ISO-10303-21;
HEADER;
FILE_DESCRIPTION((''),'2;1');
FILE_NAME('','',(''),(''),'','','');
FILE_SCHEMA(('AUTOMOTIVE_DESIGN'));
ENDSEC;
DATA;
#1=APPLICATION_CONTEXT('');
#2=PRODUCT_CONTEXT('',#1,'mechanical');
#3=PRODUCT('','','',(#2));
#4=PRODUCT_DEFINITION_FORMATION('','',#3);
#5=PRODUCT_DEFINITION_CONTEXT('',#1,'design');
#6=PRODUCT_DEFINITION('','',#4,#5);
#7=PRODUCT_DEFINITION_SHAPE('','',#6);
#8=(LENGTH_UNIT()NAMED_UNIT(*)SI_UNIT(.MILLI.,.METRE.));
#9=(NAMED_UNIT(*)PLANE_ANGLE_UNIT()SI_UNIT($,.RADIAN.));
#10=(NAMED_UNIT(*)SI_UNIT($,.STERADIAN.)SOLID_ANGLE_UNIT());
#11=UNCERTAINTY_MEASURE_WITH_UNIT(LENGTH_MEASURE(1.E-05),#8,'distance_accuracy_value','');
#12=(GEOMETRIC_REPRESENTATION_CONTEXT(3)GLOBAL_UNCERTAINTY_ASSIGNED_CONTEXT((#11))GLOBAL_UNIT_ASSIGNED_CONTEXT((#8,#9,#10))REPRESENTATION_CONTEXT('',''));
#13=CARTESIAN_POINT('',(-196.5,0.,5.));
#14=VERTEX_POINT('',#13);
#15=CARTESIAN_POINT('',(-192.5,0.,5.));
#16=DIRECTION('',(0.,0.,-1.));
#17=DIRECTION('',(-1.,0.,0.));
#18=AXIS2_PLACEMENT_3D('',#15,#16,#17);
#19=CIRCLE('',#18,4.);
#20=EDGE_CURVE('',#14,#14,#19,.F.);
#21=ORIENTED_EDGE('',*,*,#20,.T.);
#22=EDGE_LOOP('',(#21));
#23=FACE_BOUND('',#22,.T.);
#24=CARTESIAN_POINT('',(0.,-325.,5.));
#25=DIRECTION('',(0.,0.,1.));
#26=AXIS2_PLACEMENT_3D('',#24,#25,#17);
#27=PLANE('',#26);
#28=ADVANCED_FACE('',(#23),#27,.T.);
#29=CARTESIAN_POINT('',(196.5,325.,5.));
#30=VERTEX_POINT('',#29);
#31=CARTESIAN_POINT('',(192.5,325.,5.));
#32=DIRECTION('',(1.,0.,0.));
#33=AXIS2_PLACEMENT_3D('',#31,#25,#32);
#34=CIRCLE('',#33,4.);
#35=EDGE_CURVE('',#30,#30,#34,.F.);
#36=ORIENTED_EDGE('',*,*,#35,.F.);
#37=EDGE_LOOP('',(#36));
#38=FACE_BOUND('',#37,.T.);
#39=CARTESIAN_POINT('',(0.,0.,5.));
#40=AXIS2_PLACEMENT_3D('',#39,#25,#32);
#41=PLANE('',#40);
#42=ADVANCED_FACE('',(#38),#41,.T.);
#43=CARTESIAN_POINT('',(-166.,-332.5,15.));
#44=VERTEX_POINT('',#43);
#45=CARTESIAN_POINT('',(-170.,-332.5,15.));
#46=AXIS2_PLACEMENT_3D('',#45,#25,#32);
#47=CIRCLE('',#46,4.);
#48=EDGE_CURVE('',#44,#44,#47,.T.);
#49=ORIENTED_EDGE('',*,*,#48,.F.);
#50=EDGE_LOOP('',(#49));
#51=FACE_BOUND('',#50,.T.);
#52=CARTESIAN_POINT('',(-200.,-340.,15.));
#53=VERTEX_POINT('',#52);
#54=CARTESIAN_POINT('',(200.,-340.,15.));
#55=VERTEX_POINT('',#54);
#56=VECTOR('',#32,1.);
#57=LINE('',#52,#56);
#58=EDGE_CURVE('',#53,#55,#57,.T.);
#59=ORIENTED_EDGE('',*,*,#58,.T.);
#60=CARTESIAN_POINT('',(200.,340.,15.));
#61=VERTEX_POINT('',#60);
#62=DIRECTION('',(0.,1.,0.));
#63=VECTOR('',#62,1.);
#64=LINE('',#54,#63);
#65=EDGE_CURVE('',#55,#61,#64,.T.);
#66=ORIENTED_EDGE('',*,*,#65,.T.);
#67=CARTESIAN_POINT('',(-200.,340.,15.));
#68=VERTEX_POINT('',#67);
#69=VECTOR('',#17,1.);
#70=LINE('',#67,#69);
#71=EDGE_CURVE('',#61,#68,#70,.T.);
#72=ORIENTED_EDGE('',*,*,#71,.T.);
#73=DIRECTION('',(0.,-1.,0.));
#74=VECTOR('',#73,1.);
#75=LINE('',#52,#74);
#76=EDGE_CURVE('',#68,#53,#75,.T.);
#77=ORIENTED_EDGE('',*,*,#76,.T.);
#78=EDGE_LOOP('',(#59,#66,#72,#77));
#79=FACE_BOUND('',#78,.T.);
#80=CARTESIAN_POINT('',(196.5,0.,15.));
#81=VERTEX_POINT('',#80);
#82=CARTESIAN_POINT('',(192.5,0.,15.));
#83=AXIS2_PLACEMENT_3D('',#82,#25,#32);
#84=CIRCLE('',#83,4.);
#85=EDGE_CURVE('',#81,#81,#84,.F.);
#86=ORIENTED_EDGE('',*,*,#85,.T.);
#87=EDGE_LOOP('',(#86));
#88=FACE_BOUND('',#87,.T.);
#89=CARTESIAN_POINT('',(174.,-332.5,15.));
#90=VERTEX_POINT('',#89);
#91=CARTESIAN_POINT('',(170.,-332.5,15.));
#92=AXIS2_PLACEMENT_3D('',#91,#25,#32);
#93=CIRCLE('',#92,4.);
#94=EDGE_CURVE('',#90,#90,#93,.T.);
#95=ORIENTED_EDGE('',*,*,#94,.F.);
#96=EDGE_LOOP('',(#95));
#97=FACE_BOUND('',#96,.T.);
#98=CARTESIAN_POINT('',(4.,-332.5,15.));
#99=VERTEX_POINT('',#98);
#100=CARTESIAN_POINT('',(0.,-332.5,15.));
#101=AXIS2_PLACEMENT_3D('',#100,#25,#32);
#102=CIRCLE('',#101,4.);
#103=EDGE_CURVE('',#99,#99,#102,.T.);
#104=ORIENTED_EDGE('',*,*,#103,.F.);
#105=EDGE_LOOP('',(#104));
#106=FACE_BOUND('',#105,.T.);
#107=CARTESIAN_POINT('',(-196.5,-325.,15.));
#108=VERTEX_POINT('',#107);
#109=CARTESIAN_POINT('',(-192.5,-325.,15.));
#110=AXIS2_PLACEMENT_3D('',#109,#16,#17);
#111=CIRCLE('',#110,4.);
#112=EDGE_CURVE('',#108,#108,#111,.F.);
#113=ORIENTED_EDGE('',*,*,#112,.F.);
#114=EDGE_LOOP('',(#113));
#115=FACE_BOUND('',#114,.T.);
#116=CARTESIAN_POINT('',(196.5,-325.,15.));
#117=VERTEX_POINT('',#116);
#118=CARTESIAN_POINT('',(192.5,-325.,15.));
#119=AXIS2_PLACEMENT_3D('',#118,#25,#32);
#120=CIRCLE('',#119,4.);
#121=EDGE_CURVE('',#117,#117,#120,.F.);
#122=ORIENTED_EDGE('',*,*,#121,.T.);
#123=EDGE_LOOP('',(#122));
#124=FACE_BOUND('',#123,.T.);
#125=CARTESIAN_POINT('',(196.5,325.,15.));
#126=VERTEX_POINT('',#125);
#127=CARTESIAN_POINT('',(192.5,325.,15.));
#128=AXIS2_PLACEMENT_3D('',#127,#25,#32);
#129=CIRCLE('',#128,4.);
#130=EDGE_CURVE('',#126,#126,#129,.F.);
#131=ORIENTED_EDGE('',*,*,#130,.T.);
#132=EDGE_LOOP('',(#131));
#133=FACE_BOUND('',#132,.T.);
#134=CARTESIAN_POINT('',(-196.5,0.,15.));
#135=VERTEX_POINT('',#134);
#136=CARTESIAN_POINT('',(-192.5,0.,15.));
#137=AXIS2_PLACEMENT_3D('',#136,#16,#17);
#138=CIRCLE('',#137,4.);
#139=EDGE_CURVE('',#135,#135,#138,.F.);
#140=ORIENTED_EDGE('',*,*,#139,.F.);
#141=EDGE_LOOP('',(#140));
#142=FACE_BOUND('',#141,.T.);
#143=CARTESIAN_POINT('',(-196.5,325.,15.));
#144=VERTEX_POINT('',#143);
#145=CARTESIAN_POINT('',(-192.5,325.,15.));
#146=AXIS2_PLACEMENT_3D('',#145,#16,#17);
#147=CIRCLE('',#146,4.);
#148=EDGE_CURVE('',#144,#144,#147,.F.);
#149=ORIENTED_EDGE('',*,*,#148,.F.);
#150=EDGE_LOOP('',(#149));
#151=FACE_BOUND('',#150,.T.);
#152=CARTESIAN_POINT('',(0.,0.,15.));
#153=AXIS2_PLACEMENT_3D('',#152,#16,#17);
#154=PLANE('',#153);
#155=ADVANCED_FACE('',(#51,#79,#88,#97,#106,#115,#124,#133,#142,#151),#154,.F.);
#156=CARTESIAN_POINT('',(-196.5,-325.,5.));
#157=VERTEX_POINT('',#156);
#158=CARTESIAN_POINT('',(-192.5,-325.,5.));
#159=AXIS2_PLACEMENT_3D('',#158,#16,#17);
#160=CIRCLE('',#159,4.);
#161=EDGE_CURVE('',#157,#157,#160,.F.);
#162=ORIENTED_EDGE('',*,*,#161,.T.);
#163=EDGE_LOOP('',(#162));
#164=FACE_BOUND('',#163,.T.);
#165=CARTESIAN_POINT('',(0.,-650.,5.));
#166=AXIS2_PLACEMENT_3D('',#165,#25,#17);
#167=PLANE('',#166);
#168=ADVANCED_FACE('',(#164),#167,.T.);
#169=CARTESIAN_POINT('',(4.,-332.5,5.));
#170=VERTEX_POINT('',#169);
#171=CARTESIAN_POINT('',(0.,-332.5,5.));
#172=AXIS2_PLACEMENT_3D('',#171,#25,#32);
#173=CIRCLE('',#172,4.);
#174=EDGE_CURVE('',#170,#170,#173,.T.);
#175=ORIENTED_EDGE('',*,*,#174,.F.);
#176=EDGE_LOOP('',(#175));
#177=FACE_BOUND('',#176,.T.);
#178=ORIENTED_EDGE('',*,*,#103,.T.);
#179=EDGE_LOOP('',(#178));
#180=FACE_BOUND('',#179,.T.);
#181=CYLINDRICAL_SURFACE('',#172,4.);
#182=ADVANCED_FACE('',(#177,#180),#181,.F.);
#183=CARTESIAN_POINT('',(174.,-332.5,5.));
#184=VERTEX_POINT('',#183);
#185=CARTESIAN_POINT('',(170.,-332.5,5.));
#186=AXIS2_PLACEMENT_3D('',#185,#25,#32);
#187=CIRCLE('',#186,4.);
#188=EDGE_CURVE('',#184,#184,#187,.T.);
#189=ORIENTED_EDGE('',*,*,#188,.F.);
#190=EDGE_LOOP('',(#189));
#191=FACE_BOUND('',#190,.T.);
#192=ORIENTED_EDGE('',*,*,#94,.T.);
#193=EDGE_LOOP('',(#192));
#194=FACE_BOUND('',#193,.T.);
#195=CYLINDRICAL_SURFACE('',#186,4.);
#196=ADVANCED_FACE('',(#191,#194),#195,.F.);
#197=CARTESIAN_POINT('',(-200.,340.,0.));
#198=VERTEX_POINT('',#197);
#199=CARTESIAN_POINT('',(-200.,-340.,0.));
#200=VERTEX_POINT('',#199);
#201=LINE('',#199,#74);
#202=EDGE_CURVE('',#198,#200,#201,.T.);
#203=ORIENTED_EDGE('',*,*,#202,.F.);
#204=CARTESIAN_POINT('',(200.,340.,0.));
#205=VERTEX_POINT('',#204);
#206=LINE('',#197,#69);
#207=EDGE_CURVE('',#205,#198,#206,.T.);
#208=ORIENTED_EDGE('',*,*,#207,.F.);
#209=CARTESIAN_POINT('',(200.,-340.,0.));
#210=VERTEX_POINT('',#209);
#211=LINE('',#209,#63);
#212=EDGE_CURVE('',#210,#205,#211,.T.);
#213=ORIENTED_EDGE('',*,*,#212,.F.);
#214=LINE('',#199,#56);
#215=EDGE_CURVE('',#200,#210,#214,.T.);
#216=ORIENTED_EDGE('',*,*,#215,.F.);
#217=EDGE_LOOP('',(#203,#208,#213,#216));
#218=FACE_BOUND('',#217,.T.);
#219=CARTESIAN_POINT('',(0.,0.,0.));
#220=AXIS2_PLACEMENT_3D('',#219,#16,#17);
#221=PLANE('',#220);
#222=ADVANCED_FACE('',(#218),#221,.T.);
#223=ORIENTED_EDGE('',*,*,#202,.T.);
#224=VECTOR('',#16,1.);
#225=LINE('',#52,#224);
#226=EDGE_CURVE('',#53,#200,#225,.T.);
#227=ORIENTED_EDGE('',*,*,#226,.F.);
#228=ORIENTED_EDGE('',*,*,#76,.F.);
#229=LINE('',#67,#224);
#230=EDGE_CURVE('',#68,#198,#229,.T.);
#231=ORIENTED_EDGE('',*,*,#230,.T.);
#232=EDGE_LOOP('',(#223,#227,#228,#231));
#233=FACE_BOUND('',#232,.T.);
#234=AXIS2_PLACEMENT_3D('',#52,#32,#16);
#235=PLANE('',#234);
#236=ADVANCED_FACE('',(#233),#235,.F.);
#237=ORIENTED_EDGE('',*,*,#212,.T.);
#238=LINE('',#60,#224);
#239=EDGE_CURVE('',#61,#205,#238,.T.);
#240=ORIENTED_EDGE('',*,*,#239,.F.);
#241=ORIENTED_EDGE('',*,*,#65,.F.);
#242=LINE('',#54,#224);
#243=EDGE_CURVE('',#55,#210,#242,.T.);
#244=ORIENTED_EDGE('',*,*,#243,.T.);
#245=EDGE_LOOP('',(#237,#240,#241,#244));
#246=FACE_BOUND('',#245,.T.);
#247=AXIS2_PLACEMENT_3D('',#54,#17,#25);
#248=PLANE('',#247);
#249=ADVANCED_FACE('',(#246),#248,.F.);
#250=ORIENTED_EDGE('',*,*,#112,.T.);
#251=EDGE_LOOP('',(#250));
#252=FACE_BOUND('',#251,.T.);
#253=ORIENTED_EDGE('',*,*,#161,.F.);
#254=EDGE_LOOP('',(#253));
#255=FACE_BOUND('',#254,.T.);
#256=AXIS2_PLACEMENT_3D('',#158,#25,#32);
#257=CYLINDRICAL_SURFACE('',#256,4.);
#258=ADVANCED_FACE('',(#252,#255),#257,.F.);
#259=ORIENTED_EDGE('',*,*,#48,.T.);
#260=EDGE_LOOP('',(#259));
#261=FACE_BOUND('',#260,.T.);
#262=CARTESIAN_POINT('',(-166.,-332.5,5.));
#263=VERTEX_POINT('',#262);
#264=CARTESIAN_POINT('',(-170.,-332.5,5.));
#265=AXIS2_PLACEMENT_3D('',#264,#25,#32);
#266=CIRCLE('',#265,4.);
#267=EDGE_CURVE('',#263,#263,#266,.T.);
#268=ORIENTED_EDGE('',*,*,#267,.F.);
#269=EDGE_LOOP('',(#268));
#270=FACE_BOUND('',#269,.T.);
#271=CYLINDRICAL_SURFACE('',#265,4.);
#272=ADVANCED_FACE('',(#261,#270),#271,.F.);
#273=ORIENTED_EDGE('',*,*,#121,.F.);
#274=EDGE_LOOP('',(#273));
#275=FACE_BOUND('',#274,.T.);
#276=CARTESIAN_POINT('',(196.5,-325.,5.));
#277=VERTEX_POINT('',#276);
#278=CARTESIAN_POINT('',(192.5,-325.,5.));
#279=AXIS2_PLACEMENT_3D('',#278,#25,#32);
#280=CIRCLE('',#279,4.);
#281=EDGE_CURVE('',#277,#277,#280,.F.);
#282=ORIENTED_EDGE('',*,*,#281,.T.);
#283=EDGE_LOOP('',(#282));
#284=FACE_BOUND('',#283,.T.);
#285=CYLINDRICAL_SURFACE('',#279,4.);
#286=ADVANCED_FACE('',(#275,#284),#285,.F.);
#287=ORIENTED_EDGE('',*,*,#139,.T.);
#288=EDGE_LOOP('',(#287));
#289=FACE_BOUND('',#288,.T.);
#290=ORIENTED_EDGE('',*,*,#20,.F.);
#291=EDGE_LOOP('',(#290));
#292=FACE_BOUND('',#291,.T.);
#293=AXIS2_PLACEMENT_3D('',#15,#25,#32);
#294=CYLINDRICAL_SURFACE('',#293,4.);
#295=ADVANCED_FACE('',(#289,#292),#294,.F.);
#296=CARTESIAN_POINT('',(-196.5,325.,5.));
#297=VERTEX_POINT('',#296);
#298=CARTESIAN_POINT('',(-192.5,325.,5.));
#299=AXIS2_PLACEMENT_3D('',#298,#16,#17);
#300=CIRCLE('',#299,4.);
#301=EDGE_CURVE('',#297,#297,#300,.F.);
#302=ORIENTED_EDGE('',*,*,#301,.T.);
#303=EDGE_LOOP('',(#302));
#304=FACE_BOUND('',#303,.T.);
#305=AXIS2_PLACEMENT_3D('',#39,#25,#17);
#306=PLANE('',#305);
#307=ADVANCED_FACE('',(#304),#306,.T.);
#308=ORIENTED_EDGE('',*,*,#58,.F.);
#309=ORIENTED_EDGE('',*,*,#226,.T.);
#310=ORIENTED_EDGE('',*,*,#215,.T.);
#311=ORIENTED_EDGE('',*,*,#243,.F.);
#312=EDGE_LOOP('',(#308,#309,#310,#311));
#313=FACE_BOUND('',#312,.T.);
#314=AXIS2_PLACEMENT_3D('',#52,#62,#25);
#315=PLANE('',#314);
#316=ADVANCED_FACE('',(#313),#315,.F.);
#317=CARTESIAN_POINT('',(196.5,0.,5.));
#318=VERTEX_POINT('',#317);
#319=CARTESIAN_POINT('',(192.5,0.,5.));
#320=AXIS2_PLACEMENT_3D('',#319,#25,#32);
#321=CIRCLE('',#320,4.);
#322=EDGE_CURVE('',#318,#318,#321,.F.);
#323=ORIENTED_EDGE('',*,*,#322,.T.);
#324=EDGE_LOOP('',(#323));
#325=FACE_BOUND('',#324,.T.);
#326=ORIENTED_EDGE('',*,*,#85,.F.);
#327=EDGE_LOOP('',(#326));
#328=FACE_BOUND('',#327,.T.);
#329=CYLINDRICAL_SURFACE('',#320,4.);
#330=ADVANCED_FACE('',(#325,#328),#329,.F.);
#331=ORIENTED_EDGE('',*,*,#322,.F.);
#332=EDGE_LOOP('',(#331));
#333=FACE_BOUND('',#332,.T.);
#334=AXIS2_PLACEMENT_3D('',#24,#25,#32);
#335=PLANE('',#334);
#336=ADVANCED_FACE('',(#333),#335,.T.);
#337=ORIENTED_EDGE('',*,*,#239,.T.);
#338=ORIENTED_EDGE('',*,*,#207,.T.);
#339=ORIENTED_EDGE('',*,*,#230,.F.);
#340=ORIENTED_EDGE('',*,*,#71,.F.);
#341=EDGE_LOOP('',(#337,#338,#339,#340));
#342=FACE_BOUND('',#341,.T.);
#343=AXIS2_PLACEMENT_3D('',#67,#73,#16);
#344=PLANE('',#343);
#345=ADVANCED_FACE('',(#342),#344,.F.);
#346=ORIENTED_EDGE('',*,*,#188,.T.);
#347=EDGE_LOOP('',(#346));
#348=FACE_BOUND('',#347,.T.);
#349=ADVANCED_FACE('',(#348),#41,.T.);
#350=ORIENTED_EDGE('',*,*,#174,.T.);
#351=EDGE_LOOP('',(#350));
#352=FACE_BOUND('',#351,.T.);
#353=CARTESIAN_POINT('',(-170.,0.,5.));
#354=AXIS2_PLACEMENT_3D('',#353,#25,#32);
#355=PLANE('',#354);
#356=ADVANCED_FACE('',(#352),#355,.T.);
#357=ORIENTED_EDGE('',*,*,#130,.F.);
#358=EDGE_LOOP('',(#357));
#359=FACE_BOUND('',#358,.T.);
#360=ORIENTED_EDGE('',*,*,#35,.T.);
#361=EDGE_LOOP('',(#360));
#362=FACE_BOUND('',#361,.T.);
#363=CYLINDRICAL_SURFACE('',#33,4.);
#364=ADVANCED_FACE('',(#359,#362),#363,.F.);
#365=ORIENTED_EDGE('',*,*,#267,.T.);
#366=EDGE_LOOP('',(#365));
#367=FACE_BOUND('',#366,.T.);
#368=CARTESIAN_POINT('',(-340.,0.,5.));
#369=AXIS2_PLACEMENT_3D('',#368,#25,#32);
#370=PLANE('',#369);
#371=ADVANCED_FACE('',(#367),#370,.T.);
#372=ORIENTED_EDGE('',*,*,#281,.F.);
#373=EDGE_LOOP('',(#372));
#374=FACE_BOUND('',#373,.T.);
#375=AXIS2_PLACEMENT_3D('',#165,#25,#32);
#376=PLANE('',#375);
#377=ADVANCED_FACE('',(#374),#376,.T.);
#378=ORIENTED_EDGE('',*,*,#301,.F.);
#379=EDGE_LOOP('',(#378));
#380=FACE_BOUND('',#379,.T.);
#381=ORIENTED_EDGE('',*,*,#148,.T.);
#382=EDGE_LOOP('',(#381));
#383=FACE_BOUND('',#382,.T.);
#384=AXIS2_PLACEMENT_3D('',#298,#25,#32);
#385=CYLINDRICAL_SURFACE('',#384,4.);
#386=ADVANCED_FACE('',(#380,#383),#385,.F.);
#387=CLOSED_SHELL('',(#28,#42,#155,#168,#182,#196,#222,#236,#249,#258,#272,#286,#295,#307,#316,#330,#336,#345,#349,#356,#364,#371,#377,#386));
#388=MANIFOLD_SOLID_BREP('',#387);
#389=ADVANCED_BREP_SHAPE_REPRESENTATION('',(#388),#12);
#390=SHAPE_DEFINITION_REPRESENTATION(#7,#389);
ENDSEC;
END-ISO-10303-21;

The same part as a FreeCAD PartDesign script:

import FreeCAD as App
import Part
import Sketcher
from FreeCAD import Vector


def add_polygon(sketch, points):
    """Adds a closed chain of lines whose ends are joined by coincident constraints."""
    first, n = sketch.GeometryCount, len(points)
    for a, b in zip(points, points[1:] + points[:1]):
        sketch.addGeometry(Part.LineSegment(App.Vector(*a, 0), App.Vector(*b, 0)), False)
    for i in range(n):
        sketch.addConstraint(Sketcher.Constraint("Coincident", first + i, 2, first + (i + 1) % n, 1))

doc = App.newDocument("Part")
body = doc.addObject("PartDesign::Body", "Body")

# Sketch on XY plane
sketch1 = doc.addObject("Sketcher::SketchObject", "Sketch")
body.addObject(sketch1)
sketch1.AttachmentSupport = (doc.XY_Plane, [""])
sketch1.MapMode = "FlatFace"
add_polygon(sketch1, [(-200, 340), (-200, -340), (200, -340), (200, 340)])  # lines 0-3
sketch1.addConstraint([
    Sketcher.Constraint("Vertical", 0),
    Sketcher.Constraint("Horizontal", 1),
    Sketcher.Constraint("Vertical", 2),
    Sketcher.Constraint("Horizontal", 3),
    Sketcher.Constraint("Symmetric", 0, 2, 2, 2, -1, 1),
    Sketcher.Constraint("DistanceX", 1, 1, 1, 2, 400.0),
    Sketcher.Constraint("DistanceY", 0, 2, 0, 1, 680.0),
])
pad1 = doc.addObject("PartDesign::Pad", "Pad")
body.addObject(pad1)
pad1.Profile = sketch1
pad1.Length = 15

# Sketch on XY plane
sketch2 = doc.addObject("Sketcher::SketchObject", "Sketch001")
body.addObject(sketch2)
sketch2.AttachmentSupport = (doc.XY_Plane, [""])
sketch2.MapMode = "FlatFace"
sketch2.AttachmentOffset = App.Placement(Vector(0, 0, 15), App.Rotation())
sketch2.addGeometry(Part.Circle(Vector(192.5, 325, 0), Vector(0, 0, 1), 4), False)
sketch2.addConstraint([
    Sketcher.Constraint("Diameter", 0, 8.0),
    Sketcher.Constraint("DistanceY", -1, 1, 0, 3, 325.0),
    Sketcher.Constraint("DistanceX", -1, 1, 0, 3, 192.5),
])
pocket1 = doc.addObject("PartDesign::Pocket", "Pocket")
body.addObject(pocket1)
pocket1.Profile = sketch2
pocket1.Length = 10
doc.recompute()

linearpattern = doc.addObject("PartDesign::LinearPattern", "LinearPattern")
body.addObject(linearpattern)
linearpattern.Originals = [pocket1]
linearpattern.Direction = (doc.Y_Axis, [""])
linearpattern.Mode = "offset"
linearpattern.Offset = 325
linearpattern.Occurrences = 3
linearpattern.Reversed = True
body.Tip = linearpattern
doc.recompute()

mirrored = doc.addObject("PartDesign::Mirrored", "Mirrored")
body.addObject(mirrored)
mirrored.Originals = [pocket1]
mirrored.MirrorPlane = (doc.YZ_Plane, [""])
body.Tip = mirrored

# Sketch on XY plane
sketch3 = doc.addObject("Sketcher::SketchObject", "Sketch002")
body.addObject(sketch3)
sketch3.AttachmentSupport = (doc.XY_Plane, [""])
sketch3.MapMode = "FlatFace"
sketch3.AttachmentOffset = App.Placement(Vector(0, 0, 15), App.Rotation())
sketch3.addGeometry(Part.Circle(Vector(-192.5, 0, 0), Vector(0, 0, 1), 4), False)
sketch3.addConstraint([
    Sketcher.Constraint("PointOnObject", 0, 3, -1),
    Sketcher.Constraint("Diameter", 0, 8.0),
    Sketcher.Constraint("DistanceX", 0, 3, -1, 1, 192.5),
])
pocket2 = doc.addObject("PartDesign::Pocket", "Pocket001")
body.addObject(pocket2)
pocket2.Profile = sketch3
pocket2.Length = 10

# Sketch on XY plane
sketch4 = doc.addObject("Sketcher::SketchObject", "Sketch003")
body.addObject(sketch4)
sketch4.AttachmentSupport = (doc.XY_Plane, [""])
sketch4.MapMode = "FlatFace"
sketch4.AttachmentOffset = App.Placement(Vector(0, 0, 15), App.Rotation())
sketch4.addGeometry(Part.Circle(Vector(-192.5, -325, 0), Vector(0, 0, 1), 4), False)
sketch4.addConstraint([
    Sketcher.Constraint("Diameter", 0, 8.0),
    Sketcher.Constraint("DistanceY", 0, 3, -1, 1, 325.0),
    Sketcher.Constraint("DistanceX", 0, 3, -1, 1, 192.5),
])
pocket3 = doc.addObject("PartDesign::Pocket", "Pocket002")
body.addObject(pocket3)
pocket3.Profile = sketch4
pocket3.Length = 10

# Sketch on XY plane
sketch5 = doc.addObject("Sketcher::SketchObject", "Sketch004")
body.addObject(sketch5)
sketch5.AttachmentSupport = (doc.XY_Plane, [""])
sketch5.MapMode = "FlatFace"
sketch5.AttachmentOffset = App.Placement(Vector(0, 0, 15), App.Rotation())
sketch5.addGeometry(Part.Circle(Vector(170, -332.5, 0), Vector(0, 0, 1), 4), False)
sketch5.addConstraint([
    Sketcher.Constraint("Diameter", 0, 8.0),
    Sketcher.Constraint("DistanceX", -1, 1, 0, 3, 170.0),
    Sketcher.Constraint("DistanceY", 0, 3, -1, 1, 332.5),
])
pocket4 = doc.addObject("PartDesign::Pocket", "Pocket003")
body.addObject(pocket4)
pocket4.Profile = sketch5
pocket4.Length = 10
doc.recompute()

linearpattern2 = doc.addObject("PartDesign::LinearPattern", "LinearPattern001")
body.addObject(linearpattern2)
linearpattern2.Originals = [pocket4]
linearpattern2.Direction = (doc.X_Axis, [""])
linearpattern2.Mode = "offset"
linearpattern2.Offset = 170
linearpattern2.Occurrences = 3
linearpattern2.Reversed = True
body.Tip = linearpattern2

doc.recompute()
